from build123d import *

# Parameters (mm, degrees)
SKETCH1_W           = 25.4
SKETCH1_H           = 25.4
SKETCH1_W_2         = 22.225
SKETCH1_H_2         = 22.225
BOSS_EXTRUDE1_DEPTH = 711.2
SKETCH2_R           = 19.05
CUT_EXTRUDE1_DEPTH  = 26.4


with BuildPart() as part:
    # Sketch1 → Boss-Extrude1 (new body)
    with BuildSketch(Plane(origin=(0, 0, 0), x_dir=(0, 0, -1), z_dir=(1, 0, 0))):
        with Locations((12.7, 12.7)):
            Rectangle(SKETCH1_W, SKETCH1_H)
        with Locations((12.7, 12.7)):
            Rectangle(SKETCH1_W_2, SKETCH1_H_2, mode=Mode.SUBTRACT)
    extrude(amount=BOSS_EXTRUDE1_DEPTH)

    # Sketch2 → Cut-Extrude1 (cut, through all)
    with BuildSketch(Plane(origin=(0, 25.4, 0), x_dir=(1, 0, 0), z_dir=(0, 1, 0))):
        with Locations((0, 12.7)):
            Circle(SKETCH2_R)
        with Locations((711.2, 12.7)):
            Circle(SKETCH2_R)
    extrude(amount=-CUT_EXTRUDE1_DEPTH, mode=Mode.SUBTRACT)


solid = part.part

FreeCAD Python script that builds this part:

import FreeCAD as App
import Part
import Sketcher

V = App.Vector
Q = App.Units.Quantity


def add_polygon(sketch, points):
    """Adds a closed chain of lines whose ends are joined by coincident constraints."""
    first, n = sketch.GeometryCount, len(points)
    for a, b in zip(points, points[1:] + points[:1]):
        sketch.addGeometry(Part.LineSegment(App.Vector(*a, 0), App.Vector(*b, 0)), False)
    for i in range(n):
        sketch.addConstraint(Sketcher.Constraint("Coincident", first + i, 2, first + (i + 1) % n, 1))

doc = App.newDocument("Part")
body = doc.addObject("PartDesign::Body", "Body")

# Sketch on YZ plane
sketch1 = body.newObject("Sketcher::SketchObject", "Sketch")
sketch1.AttachmentSupport = (doc.getObject("YZ_Plane"), [""])
sketch1.MapMode = "FlatFace"
add_polygon(sketch1, [(25, 0), (0, 0), (0, -25), (25, -25)])  # lines 0-3
add_polygon(sketch1, [(2, -24), (2, -2), (24, -2), (24, -24)])  # lines 4-7
sketch1.addConstraint([
    Sketcher.Constraint("Horizontal", 0),
    Sketcher.Constraint("Vertical", 1),
    Sketcher.Constraint("Horizontal", 2),
    Sketcher.Constraint("Vertical", 3),
    Sketcher.Constraint("Vertical", 4),
    Sketcher.Constraint("Horizontal", 5),
    Sketcher.Constraint("Vertical", 6),
    Sketcher.Constraint("Horizontal", 7),
    Sketcher.Constraint("Coincident", 0, 2, -1, 1),
    Sketcher.Constraint("Equal", 2, 1),
    Sketcher.Constraint("Equal", 7, 4),
    Sketcher.Constraint("DistanceX", 0, 2, 0, 1, Q("1 in")),
    Sketcher.Constraint("DistanceX", 5, 1, 5, 2, Q("0.875 in")),
    Sketcher.Constraint("DistanceX", -1, 1, 4, 2, Q("0.0625 in")),
    Sketcher.Constraint("DistanceY", 4, 2, -1, 1, Q("0.0625 in")),
])
pad1 = body.newObject("PartDesign::Pad", "Pad")
pad1.Profile = sketch1
pad1.Length = Q("28 in")

# Sketch on XZ plane
sketch2 = body.newObject("Sketcher::SketchObject", "Sketch001")
sketch2.AttachmentSupport = (doc.getObject("XZ_Plane"), [""])
sketch2.MapMode = "FlatFace"
sketch2.AttachmentOffset = App.Placement(V(0, 0, -1 * 25.4), App.Rotation())
sketch2.addGeometry([
    Part.Circle(V(0, -13, 0), V(0, 0, 1), 19),
    Part.Circle(V(711, -13, 0), V(0, 0, 1), 19),
], False)
sketch2.addConstraint([
    Sketcher.Constraint("Equal", 0, 1),
    Sketcher.Constraint("PointOnObject", 0, 3, -2),
    Sketcher.Constraint("Horizontal", 0, 3, 1, 3),
    Sketcher.Constraint("Diameter", 0, Q("1.5 in")),
    Sketcher.Constraint("DistanceX", -1, 1, 1, 3, Q("28 in")),
    Sketcher.Constraint("DistanceY", 0, 3, -1, 1, Q("0.5 in")),
])
pocket1 = body.newObject("PartDesign::Pocket", "Pocket")
pocket1.Profile = sketch2
pocket1.Type = "ThroughAll"
pocket1.Reversed = True

doc.recompute()
